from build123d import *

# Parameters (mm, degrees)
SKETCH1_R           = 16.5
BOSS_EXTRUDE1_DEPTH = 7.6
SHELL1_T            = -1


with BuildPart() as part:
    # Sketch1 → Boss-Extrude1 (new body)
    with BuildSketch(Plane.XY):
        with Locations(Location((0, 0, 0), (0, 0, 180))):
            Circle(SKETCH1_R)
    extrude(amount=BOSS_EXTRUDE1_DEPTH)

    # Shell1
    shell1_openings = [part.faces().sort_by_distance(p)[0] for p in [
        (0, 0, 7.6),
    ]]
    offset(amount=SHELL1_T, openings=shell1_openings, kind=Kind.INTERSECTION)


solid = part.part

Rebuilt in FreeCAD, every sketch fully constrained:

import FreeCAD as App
import Part
import Sketcher
from FreeCAD import Vector


def faces_at(feature, points):
    """Names of the faces that lie closest to the given points."""
    faces = feature.Shape.Faces
    near = lambda p: min(range(len(faces)), key=lambda i: faces[i].distToShape(Part.Vertex(*p))[0])
    return sorted({f"Face{near(p) + 1}" for p in points})

doc = App.newDocument("Part")
body = doc.addObject("PartDesign::Body", "Body")

# Sketch on XY plane
sketch1 = body.newObject("Sketcher::SketchObject", "Sketch")
sketch1.AttachmentSupport = (doc.getObject("XY_Plane"), [""])
sketch1.MapMode = "FlatFace"
sketch1.addGeometry(Part.Circle(Vector(0, 0, 0), Vector(0, 0, 1), 16), False)
sketch1.addConstraint([
    Sketcher.Constraint("Coincident", 0, 3, -1, 1),
    Sketcher.Constraint("Diameter", 0, 33.0),
])
pad1 = body.newObject("PartDesign::Pad", "Pad")
pad1.Profile = sketch1
pad1.Length = 7.6
doc.recompute()

thickness = body.newObject("PartDesign::Thickness", "Thickness")
thickness.Base = (pad1, faces_at(pad1, [(0, 0, 7.6)]))
thickness.Value = 1
thickness.Reversed = True
thickness.Join = "Intersection"

doc.recompute()
